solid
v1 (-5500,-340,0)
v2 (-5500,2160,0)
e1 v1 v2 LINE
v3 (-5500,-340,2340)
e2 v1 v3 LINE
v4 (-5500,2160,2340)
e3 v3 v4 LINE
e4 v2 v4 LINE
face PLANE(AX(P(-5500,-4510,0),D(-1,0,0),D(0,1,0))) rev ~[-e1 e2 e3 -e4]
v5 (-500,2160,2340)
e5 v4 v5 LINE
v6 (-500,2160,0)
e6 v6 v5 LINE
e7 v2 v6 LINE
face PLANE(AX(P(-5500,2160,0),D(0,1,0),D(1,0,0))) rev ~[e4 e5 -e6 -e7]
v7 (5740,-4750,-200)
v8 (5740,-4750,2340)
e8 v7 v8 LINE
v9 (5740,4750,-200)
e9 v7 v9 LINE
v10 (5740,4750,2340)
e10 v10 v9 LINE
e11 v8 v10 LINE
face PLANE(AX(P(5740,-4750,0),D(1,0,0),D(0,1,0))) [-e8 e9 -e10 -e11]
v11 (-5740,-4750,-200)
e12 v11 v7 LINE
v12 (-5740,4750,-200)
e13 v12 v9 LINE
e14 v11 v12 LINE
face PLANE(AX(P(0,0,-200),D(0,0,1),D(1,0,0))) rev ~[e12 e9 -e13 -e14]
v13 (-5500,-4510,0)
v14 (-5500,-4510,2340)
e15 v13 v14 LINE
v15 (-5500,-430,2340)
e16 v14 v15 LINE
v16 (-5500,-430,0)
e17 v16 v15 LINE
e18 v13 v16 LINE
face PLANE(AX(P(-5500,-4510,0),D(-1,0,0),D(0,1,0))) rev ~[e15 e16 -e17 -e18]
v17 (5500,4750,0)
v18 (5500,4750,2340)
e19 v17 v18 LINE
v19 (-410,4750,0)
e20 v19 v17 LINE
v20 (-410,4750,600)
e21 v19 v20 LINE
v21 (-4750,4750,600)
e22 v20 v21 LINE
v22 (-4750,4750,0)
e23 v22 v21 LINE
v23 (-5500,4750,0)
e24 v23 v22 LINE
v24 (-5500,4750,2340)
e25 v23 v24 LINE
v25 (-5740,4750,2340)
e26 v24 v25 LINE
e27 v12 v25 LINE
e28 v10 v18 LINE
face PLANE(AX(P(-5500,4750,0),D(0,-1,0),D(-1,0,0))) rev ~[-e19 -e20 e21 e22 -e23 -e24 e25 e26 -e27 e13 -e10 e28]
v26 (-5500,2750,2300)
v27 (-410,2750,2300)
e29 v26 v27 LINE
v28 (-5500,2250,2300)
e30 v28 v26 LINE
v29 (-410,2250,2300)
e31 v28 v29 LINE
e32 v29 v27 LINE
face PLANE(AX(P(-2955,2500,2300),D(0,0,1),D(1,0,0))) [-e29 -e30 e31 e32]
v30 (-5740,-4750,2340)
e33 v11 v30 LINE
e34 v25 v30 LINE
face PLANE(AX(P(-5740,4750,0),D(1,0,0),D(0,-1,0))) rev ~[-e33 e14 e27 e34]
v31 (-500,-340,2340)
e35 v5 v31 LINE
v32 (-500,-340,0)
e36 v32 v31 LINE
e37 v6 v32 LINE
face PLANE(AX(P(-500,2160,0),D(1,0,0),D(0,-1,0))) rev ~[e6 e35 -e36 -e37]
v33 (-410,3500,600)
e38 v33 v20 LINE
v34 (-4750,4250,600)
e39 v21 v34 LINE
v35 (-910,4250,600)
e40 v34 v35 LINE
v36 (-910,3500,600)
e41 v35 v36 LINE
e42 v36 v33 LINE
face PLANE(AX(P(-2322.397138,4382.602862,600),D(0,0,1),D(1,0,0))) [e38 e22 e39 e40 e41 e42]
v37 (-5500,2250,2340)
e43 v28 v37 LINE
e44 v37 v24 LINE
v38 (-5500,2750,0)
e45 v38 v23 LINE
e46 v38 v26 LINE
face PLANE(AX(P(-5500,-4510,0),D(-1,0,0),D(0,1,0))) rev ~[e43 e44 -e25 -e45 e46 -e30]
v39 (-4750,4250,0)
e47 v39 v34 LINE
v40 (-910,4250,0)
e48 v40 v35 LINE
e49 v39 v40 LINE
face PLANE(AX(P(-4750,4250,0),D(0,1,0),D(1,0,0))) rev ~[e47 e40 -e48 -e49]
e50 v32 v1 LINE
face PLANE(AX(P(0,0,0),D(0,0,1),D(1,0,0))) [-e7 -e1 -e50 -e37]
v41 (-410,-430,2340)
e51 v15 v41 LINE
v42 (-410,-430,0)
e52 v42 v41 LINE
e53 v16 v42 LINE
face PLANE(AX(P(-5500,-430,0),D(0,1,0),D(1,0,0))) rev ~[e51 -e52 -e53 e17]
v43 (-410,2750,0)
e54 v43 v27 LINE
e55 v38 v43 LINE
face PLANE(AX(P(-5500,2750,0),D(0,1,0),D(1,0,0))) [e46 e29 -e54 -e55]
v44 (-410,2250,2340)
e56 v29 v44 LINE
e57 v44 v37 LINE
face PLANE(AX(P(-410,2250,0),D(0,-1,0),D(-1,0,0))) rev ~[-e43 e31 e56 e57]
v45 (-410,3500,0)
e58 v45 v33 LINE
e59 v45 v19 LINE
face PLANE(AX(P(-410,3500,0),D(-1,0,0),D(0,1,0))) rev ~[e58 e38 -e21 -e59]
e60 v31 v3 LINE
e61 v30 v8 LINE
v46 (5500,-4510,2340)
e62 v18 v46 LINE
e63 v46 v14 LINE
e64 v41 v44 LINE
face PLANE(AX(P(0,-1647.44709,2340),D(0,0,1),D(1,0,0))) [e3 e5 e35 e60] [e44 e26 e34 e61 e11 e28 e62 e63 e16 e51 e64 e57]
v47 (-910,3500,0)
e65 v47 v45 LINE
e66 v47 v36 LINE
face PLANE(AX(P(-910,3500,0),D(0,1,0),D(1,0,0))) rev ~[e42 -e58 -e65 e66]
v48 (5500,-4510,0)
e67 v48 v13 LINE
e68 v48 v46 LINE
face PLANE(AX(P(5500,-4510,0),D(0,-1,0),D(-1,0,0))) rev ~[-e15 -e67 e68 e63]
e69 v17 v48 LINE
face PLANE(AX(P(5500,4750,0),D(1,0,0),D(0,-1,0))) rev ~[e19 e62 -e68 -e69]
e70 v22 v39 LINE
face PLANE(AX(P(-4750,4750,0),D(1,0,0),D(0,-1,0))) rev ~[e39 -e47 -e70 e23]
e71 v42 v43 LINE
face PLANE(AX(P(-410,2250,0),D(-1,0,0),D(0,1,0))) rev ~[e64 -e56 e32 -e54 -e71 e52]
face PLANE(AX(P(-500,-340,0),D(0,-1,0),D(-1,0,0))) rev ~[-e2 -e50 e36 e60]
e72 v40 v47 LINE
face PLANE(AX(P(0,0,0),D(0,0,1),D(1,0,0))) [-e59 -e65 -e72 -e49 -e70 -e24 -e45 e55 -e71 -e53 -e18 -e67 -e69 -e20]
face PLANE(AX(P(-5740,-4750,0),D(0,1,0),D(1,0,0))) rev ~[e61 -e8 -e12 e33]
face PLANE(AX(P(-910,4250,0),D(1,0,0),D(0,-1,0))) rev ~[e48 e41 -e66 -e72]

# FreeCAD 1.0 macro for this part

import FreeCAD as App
import Part
import Sketcher

V = App.Vector

doc = App.newDocument("Part")
body = doc.addObject("PartDesign::Body", "Body")

sketch1 = body.newObject("Sketcher::SketchObject", "Sketch")
sketch1.AttachmentSupport = (doc.getObject("XY_Plane"), [""])
sketch1.MapMode = "FlatFace"
sketch1.addGeometry([
    Part.LineSegment(V(-5740, 4750, 0), V(-5740, -4750, 0)),
    Part.LineSegment(V(-5740, -4750, 0), V(5740, -4750, 0)),
    Part.LineSegment(V(5740, -4750, 0), V(5740, 4750, 0)),
    Part.LineSegment(V(5740, 4750, 0), V(-5740, 4750, 0)),
], False)
sketch1.addConstraint([
    Sketcher.Constraint("Coincident", 0, 2, 1, 1),
    Sketcher.Constraint("Coincident", 1, 2, 2, 1),
    Sketcher.Constraint("Coincident", 2, 2, 3, 1),
    Sketcher.Constraint("Coincident", 3, 2, 0, 1),
    Sketcher.Constraint("Vertical", 0),
    Sketcher.Constraint("Horizontal", 1),
    Sketcher.Constraint("Vertical", 2),
    Sketcher.Constraint("Horizontal", 3),
    Sketcher.Constraint("Symmetric", 0, 2, 2, 2, -1, 1),
    Sketcher.Constraint("DistanceX", 1, 1, 1, 2, 11480.0),
    Sketcher.Constraint("DistanceY", 0, 2, 0, 1, 9500.0),
])
pad1 = body.newObject("PartDesign::Pad", "Pad")
pad1.Profile = sketch1
pad1.Length = 200
pad1.Reversed = True

sketch2 = body.newObject("Sketcher::SketchObject", "Sketch001")
sketch2.AttachmentSupport = (doc.getObject("XY_Plane"), [""])
sketch2.MapMode = "FlatFace"
sketch2.addGeometry([
    Part.LineSegment(V(-5500, 4750, 0), V(-5740, 4750, 0)),
    Part.LineSegment(V(-5740, 4750, 0), V(-5740, -4750, 0)),
    Part.LineSegment(V(-5740, -4750, 0), V(5740, -4750, 0)),
    Part.LineSegment(V(5740, -4750, 0), V(5740, 4750, 0)),
    Part.LineSegment(V(5740, 4750, 0), V(5500, 4750, 0)),
    Part.LineSegment(V(5500, 4750, 0), V(5500, -4510, 0)),
    Part.LineSegment(V(5500, -4510, 0), V(-5500, -4510, 0)),
    Part.LineSegment(V(-5500, -4510, 0), V(-5500, 4750, 0)),
], False)
sketch2.addConstraint([
    Sketcher.Constraint("Coincident", 0, 2, 1, 1),
    Sketcher.Constraint("Coincident", 1, 2, 2, 1),
    Sketcher.Constraint("Coincident", 2, 2, 3, 1),
    Sketcher.Constraint("Coincident", 3, 2, 4, 1),
    Sketcher.Constraint("Coincident", 4, 2, 5, 1),
    Sketcher.Constraint("Coincident", 5, 2, 6, 1),
    Sketcher.Constraint("Coincident", 6, 2, 7, 1),
    Sketcher.Constraint("Coincident", 7, 2, 0, 1),
    Sketcher.Constraint("Horizontal", 0),
    Sketcher.Constraint("Vertical", 1),
    Sketcher.Constraint("Horizontal", 2),
    Sketcher.Constraint("Vertical", 3),
    Sketcher.Constraint("Horizontal", 4),
    Sketcher.Constraint("Vertical", 5),
    Sketcher.Constraint("Horizontal", 6),
    Sketcher.Constraint("Vertical", 7),
    Sketcher.Constraint("Symmetric", 0, 2, 2, 2, -1, 1),
    Sketcher.Constraint("Symmetric", 4, 2, 7, 2, -2),
    Sketcher.Constraint("DistanceX", 0, 2, 0, 1, 240.0),
    Sketcher.Constraint("DistanceX", 2, 1, 2, 2, 11480.0),
    Sketcher.Constraint("DistanceY", 1, 2, 1, 1, 9500.0),
    Sketcher.Constraint("DistanceY", 5, 2, 5, 1, 9260.0),
])
pad2 = body.newObject("PartDesign::Pad", "Pad001")
pad2.Profile = sketch2
pad2.Length = 2340

sketch3 = body.newObject("Sketcher::SketchObject", "Sketch002")
sketch3.AttachmentSupport = (doc.getObject("XY_Plane"), [""])
sketch3.MapMode = "FlatFace"
sketch3.addGeometry([
    Part.LineSegment(V(-5500, -340, 0), V(-5500, -430, 0)),
    Part.LineSegment(V(-5500, -430, 0), V(-410, -430, 0)),
    Part.LineSegment(V(-410, -430, 0), V(-410, 2250, 0)),
    Part.LineSegment(V(-410, 2250, 0), V(-5500, 2250, 0)),
    Part.LineSegment(V(-5500, 2250, 0), V(-5500, 2160, 0)),
    Part.LineSegment(V(-5500, 2160, 0), V(-500, 2160, 0)),
    Part.LineSegment(V(-500, 2160, 0), V(-500, -340, 0)),
    Part.LineSegment(V(-500, -340, 0), V(-5500, -340, 0)),
], False)
sketch3.addConstraint([
    Sketcher.Constraint("Coincident", 0, 2, 1, 1),
    Sketcher.Constraint("Coincident", 1, 2, 2, 1),
    Sketcher.Constraint("Coincident", 2, 2, 3, 1),
    Sketcher.Constraint("Coincident", 3, 2, 4, 1),
    Sketcher.Constraint("Coincident", 4, 2, 5, 1),
    Sketcher.Constraint("Coincident", 5, 2, 6, 1),
    Sketcher.Constraint("Coincident", 6, 2, 7, 1),
    Sketcher.Constraint("Coincident", 7, 2, 0, 1),
    Sketcher.Constraint("Vertical", 0),
    Sketcher.Constraint("Horizontal", 1),
    Sketcher.Constraint("Vertical", 2),
    Sketcher.Constraint("Horizontal", 3),
    Sketcher.Constraint("Vertical", 4),
    Sketcher.Constraint("Horizontal", 5),
    Sketcher.Constraint("Vertical", 6),
    Sketcher.Constraint("Horizontal", 7),
    Sketcher.Constraint("Vertical", 0, 2, 3, 2),
    Sketcher.Constraint("Equal", 0, 4),
    Sketcher.Constraint("DistanceX", 1, 1, 1, 2, 5090.0),
    Sketcher.Constraint("DistanceX", 5, 1, 5, 2, 5000.0),
    Sketcher.Constraint("DistanceY", 0, 2, 0, 1, 90.0),
    Sketcher.Constraint("DistanceY", 2, 1, 2, 2, 2680.0),
    Sketcher.Constraint("DistanceX", 0, 2, -1, 1, 5500.0),
    Sketcher.Constraint("DistanceY", 0, 2, -1, 1, 430.0),
])
pad3 = body.newObject("PartDesign::Pad", "Pad002")
pad3.Profile = sketch3
pad3.Length = 2340

sketch4 = body.newObject("Sketcher::SketchObject", "Sketch003")
sketch4.AttachmentSupport = (doc.getObject("XY_Plane"), [""])
sketch4.MapMode = "FlatFace"
sketch4.addGeometry([
    Part.LineSegment(V(-5500, 2750, 0), V(-5500, 2250, 0)),
    Part.LineSegment(V(-5500, 2250, 0), V(-410, 2250, 0)),
    Part.LineSegment(V(-410, 2250, 0), V(-410, 2750, 0)),
    Part.LineSegment(V(-410, 2750, 0), V(-5500, 2750, 0)),
], False)
sketch4.addConstraint([
    Sketcher.Constraint("Coincident", 0, 2, 1, 1),
    Sketcher.Constraint("Coincident", 1, 2, 2, 1),
    Sketcher.Constraint("Coincident", 2, 2, 3, 1),
    Sketcher.Constraint("Coincident", 3, 2, 0, 1),
    Sketcher.Constraint("Vertical", 0),
    Sketcher.Constraint("Horizontal", 1),
    Sketcher.Constraint("Vertical", 2),
    Sketcher.Constraint("Horizontal", 3),
    Sketcher.Constraint("DistanceX", 1, 1, 1, 2, 5090.0),
    Sketcher.Constraint("DistanceY", 0, 2, 0, 1, 500.0),
    Sketcher.Constraint("DistanceX", 0, 2, -1, 1, 5500.0),
    Sketcher.Constraint("DistanceY", -1, 1, 0, 2, 2250.0),
])
pad4 = body.newObject("PartDesign::Pad", "Pad003")
pad4.Profile = sketch4
pad4.Length = 2300

sketch5 = body.newObject("Sketcher::SketchObject", "Sketch004")
sketch5.AttachmentSupport = (doc.getObject("XY_Plane"), [""])
sketch5.MapMode = "FlatFace"
sketch5.addGeometry([
    Part.LineSegment(V(-4750, 4750, 0), V(-4750, 4250, 0)),
    Part.LineSegment(V(-4750, 4250, 0), V(-910, 4250, 0)),
    Part.LineSegment(V(-910, 4250, 0), V(-910, 3500, 0)),
    Part.LineSegment(V(-910, 3500, 0), V(-410, 3500, 0)),
    Part.LineSegment(V(-410, 3500, 0), V(-410, 4750, 0)),
    Part.LineSegment(V(-410, 4750, 0), V(-4750, 4750, 0)),
], False)
sketch5.addConstraint([
    Sketcher.Constraint("Coincident", 0, 2, 1, 1),
    Sketcher.Constraint("Coincident", 1, 2, 2, 1),
    Sketcher.Constraint("Coincident", 2, 2, 3, 1),
    Sketcher.Constraint("Coincident", 3, 2, 4, 1),
    Sketcher.Constraint("Coincident", 4, 2, 5, 1),
    Sketcher.Constraint("Coincident", 5, 2, 0, 1),
    Sketcher.Constraint("Vertical", 0),
    Sketcher.Constraint("Horizontal", 1),
    Sketcher.Constraint("Vertical", 2),
    Sketcher.Constraint("Horizontal", 3),
    Sketcher.Constraint("Vertical", 4),
    Sketcher.Constraint("Horizontal", 5),
    Sketcher.Constraint("Equal", 3, 0),
    Sketcher.Constraint("DistanceX", 1, 1, 1, 2, 3840.0),
    Sketcher.Constraint("DistanceX", 3, 1, 3, 2, 500.0),
    Sketcher.Constraint("DistanceY", 2, 2, 2, 1, 750.0),
    Sketcher.Constraint("DistanceX", 0, 2, -1, 1, 4750.0),
    Sketcher.Constraint("DistanceY", -1, 1, 0, 2, 4250.0),
])
pad5 = body.newObject("PartDesign::Pad", "Pad004")
pad5.Profile = sketch5
pad5.Length = 600

doc.recompute()
